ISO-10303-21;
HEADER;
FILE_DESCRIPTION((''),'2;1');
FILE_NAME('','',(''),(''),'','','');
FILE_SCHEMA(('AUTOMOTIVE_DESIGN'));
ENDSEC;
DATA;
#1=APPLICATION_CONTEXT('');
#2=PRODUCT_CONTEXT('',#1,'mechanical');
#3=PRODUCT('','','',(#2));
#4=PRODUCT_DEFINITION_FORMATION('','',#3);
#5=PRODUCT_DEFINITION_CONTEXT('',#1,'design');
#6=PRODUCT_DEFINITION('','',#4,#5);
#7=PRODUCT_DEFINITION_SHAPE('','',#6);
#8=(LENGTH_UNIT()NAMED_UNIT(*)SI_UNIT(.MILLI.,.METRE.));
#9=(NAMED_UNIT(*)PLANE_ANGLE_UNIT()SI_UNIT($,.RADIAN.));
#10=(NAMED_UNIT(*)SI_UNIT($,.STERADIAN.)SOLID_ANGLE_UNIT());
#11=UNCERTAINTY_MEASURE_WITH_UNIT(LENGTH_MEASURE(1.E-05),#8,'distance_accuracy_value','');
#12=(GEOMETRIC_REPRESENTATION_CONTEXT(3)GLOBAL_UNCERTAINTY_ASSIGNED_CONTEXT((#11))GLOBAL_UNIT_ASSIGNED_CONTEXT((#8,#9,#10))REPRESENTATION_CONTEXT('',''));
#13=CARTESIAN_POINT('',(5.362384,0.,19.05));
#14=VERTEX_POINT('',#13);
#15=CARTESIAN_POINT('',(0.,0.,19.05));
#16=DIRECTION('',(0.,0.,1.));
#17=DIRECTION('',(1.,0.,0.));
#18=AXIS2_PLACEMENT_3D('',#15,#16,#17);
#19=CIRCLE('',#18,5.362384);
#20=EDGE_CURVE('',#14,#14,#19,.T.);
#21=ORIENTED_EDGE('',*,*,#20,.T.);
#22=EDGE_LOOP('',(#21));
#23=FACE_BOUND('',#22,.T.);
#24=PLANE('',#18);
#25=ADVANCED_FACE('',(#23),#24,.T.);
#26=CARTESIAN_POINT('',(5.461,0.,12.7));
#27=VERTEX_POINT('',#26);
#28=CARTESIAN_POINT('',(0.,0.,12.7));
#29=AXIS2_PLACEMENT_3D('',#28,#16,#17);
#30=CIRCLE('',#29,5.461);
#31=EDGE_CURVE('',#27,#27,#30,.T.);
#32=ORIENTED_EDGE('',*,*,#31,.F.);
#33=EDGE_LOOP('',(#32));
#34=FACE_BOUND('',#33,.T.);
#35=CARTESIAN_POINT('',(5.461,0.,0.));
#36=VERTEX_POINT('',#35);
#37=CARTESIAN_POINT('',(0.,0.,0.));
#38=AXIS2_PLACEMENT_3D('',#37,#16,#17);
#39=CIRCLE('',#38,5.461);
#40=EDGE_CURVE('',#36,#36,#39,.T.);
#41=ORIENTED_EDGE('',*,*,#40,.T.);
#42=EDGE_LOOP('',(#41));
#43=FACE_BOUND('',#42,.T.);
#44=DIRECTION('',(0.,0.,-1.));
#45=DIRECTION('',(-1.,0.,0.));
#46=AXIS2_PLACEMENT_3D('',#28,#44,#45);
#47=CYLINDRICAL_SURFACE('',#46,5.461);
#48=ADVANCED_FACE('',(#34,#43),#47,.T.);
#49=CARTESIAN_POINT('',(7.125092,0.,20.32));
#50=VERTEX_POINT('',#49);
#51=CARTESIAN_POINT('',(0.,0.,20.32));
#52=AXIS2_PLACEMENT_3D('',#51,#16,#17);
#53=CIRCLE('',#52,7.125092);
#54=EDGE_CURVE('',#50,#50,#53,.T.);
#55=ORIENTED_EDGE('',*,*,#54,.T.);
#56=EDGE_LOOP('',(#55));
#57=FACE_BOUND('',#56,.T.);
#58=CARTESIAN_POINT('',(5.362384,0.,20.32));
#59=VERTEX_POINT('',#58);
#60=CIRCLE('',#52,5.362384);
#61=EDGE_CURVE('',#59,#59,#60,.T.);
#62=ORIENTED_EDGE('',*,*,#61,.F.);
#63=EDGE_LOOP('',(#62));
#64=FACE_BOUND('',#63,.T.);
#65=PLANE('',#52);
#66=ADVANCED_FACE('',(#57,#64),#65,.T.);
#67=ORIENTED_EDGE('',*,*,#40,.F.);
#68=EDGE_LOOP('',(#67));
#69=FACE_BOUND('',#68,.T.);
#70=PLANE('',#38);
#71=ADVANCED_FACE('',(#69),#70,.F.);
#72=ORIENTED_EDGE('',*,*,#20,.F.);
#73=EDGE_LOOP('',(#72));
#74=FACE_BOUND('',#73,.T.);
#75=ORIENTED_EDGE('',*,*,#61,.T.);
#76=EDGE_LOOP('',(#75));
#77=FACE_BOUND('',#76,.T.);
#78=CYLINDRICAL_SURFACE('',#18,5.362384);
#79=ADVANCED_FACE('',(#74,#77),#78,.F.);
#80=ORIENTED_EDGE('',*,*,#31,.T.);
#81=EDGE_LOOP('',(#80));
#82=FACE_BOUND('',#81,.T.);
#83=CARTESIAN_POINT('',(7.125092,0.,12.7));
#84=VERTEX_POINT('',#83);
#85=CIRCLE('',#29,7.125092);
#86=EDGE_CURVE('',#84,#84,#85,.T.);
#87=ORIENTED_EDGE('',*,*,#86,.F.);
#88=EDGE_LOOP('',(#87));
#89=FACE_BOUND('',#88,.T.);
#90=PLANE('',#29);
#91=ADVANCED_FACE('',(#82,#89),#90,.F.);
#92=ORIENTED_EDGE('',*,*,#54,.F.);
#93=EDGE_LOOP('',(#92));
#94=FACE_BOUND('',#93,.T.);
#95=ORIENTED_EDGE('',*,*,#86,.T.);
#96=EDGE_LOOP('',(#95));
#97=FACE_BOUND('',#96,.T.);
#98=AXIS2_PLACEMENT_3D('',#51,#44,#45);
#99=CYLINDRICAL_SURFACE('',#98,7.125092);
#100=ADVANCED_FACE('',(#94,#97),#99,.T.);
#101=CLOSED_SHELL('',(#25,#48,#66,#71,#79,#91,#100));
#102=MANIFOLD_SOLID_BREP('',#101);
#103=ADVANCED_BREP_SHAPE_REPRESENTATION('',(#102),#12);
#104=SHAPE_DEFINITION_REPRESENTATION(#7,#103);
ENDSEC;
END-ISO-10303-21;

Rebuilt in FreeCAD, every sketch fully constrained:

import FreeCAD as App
import Part
import Sketcher

V = App.Vector
Q = App.Units.Quantity

doc = App.newDocument("Part")
body = doc.addObject("PartDesign::Body", "Body")

sketch1 = body.newObject("Sketcher::SketchObject", "Sketch")
sketch1.AttachmentSupport = (doc.getObject("XY_Plane"), [""])
sketch1.MapMode = "FlatFace"
sketch1.addGeometry(Part.Circle(V(0, 0, 0), V(0, 0, 1), 5), False)
sketch1.addConstraint(Sketcher.Constraint("Coincident", 0, 3, -1, 1))
sketch1.addConstraint(Sketcher.Constraint("Diameter", 0, Q("0.43 in")))
pad1 = body.newObject("PartDesign::Pad", "Pad")
pad1.Profile = sketch1
pad1.Length = Q("0.5 in")

sketch2 = body.newObject("Sketcher::SketchObject", "Sketch001")
sketch2.AttachmentSupport = (doc.getObject("XY_Plane"), [""])
sketch2.MapMode = "FlatFace"
sketch2.AttachmentOffset = App.Placement(V(0, 0, 0.5 * 25.4), App.Rotation())
sketch2.addGeometry(Part.Circle(V(0, 0, 0), V(0, 0, 1), 7), False)
sketch2.addConstraint(Sketcher.Constraint("Coincident", 0, 3, -1, 1))
sketch2.addConstraint(Sketcher.Constraint("Diameter", 0, Q("14.250184 mm")))
pad2 = body.newObject("PartDesign::Pad", "Pad001")
pad2.Profile = sketch2
pad2.Length = Q("0.3 in")

sketch3 = body.newObject("Sketcher::SketchObject", "Sketch002")
sketch3.AttachmentSupport = (doc.getObject("XY_Plane"), [""])
sketch3.MapMode = "FlatFace"
sketch3.AttachmentOffset = App.Placement(V(0, 0, 0.8 * 25.4), App.Rotation())
sketch3.addGeometry(Part.Circle(V(0, 0, 0), V(0, 0, 1), 5), False)
sketch3.addConstraint(Sketcher.Constraint("Coincident", 0, 3, -1, 1))
sketch3.addConstraint(Sketcher.Constraint("Diameter", 0, Q("10.724768 mm")))
pocket1 = body.newObject("PartDesign::Pocket", "Pocket")
pocket1.Profile = sketch3
pocket1.Length = Q("0.05 in")

doc.recompute()
